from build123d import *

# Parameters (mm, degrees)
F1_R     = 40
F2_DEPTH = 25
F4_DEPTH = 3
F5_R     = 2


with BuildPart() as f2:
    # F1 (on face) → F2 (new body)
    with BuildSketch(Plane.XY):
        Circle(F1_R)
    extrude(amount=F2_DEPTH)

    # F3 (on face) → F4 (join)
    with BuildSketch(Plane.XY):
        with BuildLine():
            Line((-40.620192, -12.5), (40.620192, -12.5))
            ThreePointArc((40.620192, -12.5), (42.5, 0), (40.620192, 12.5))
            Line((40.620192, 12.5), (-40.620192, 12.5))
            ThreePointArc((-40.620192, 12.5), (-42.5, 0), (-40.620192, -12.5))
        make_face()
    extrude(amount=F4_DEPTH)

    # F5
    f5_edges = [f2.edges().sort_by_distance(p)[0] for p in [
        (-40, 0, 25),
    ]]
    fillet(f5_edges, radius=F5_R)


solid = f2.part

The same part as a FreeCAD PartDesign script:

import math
import FreeCAD as App
import Part
import Sketcher
Q = App.Units.Quantity


def edges_at(feature, points):
    """Names of the edges that pass closest to the given points."""
    edges = feature.Shape.Edges
    near = lambda p: min(range(len(edges)), key=lambda i: edges[i].distToShape(Part.Vertex(*p))[0])
    return sorted({f"Edge{near(p) + 1}" for p in points})

doc = App.newDocument("Part")
body = doc.addObject("PartDesign::Body", "Body")

# Sketch on XY plane
sketch1 = body.newObject("Sketcher::SketchObject", "Sketch")
sketch1.AttachmentSupport = (doc.getObject("XY_Plane"), [""])
sketch1.MapMode = "FlatFace"
sketch1.addGeometry(Part.Circle(App.Vector(0, 0, 0), App.Vector(0, 0, 1), 40), False)
sketch1.addConstraint([
    Sketcher.Constraint("Coincident", 0, 3, -1, 1),
    Sketcher.Constraint("Diameter", 0, Q("80 mm")),
])
pad1 = body.newObject("PartDesign::Pad", "Pad")
pad1.Profile = sketch1
pad1.Length = 25

# Sketch on XY plane
sketch2 = body.newObject("Sketcher::SketchObject", "Sketch001")
sketch2.AttachmentSupport = (doc.getObject("XY_Plane"), [""])
sketch2.MapMode = "FlatFace"
sketch2.addGeometry([
    Part.LineSegment(App.Vector(-40.620192, -12.5, 0), App.Vector(40.620192, -12.5, 0)),
    Part.ArcOfCircle(Part.Circle(App.Vector(0.000001, 0, 0), App.Vector(0, 0, 1), 42.499999), math.radians(-17.104635), math.radians(17.104635)),
    Part.LineSegment(App.Vector(40.620192, 12.5, 0), App.Vector(-40.620192, 12.5, 0)),
    Part.ArcOfCircle(Part.Circle(App.Vector(-0.000001, 0, 0), App.Vector(0, 0, 1), 42.499999), math.radians(162.895365), math.radians(197.104635)),
], False)
sketch2.addConstraint([
    Sketcher.Constraint("Coincident", 0, 2, 1, 1),
    Sketcher.Constraint("Coincident", 1, 2, 2, 1),
    Sketcher.Constraint("Coincident", 2, 2, 3, 1),
    Sketcher.Constraint("Coincident", 3, 2, 0, 1),
    Sketcher.Constraint("Horizontal", 0),
    Sketcher.Constraint("Horizontal", 2),
    Sketcher.Constraint("Coincident", 1, 3, -1, 1),
    Sketcher.Constraint("Coincident", 3, 3, -1, 1),
    Sketcher.Constraint("Equal", 1, 3),
    Sketcher.Constraint("Vertical", 0, 2, 1, 2),
    Sketcher.Constraint("Radius", 1, Q("42.499999 mm")),
    Sketcher.Constraint("DistanceY", 0, 2, 1, 2, Q("25 mm")),
])
pad2 = body.newObject("PartDesign::Pad", "Pad001")
pad2.Profile = sketch2
pad2.Length = 3
doc.recompute()

fillet = body.newObject("PartDesign::Fillet", "Fillet")
fillet.Base = (pad2, edges_at(pad2, [(-40, 0, 25)]))
fillet.Radius = 2

doc.recompute()
